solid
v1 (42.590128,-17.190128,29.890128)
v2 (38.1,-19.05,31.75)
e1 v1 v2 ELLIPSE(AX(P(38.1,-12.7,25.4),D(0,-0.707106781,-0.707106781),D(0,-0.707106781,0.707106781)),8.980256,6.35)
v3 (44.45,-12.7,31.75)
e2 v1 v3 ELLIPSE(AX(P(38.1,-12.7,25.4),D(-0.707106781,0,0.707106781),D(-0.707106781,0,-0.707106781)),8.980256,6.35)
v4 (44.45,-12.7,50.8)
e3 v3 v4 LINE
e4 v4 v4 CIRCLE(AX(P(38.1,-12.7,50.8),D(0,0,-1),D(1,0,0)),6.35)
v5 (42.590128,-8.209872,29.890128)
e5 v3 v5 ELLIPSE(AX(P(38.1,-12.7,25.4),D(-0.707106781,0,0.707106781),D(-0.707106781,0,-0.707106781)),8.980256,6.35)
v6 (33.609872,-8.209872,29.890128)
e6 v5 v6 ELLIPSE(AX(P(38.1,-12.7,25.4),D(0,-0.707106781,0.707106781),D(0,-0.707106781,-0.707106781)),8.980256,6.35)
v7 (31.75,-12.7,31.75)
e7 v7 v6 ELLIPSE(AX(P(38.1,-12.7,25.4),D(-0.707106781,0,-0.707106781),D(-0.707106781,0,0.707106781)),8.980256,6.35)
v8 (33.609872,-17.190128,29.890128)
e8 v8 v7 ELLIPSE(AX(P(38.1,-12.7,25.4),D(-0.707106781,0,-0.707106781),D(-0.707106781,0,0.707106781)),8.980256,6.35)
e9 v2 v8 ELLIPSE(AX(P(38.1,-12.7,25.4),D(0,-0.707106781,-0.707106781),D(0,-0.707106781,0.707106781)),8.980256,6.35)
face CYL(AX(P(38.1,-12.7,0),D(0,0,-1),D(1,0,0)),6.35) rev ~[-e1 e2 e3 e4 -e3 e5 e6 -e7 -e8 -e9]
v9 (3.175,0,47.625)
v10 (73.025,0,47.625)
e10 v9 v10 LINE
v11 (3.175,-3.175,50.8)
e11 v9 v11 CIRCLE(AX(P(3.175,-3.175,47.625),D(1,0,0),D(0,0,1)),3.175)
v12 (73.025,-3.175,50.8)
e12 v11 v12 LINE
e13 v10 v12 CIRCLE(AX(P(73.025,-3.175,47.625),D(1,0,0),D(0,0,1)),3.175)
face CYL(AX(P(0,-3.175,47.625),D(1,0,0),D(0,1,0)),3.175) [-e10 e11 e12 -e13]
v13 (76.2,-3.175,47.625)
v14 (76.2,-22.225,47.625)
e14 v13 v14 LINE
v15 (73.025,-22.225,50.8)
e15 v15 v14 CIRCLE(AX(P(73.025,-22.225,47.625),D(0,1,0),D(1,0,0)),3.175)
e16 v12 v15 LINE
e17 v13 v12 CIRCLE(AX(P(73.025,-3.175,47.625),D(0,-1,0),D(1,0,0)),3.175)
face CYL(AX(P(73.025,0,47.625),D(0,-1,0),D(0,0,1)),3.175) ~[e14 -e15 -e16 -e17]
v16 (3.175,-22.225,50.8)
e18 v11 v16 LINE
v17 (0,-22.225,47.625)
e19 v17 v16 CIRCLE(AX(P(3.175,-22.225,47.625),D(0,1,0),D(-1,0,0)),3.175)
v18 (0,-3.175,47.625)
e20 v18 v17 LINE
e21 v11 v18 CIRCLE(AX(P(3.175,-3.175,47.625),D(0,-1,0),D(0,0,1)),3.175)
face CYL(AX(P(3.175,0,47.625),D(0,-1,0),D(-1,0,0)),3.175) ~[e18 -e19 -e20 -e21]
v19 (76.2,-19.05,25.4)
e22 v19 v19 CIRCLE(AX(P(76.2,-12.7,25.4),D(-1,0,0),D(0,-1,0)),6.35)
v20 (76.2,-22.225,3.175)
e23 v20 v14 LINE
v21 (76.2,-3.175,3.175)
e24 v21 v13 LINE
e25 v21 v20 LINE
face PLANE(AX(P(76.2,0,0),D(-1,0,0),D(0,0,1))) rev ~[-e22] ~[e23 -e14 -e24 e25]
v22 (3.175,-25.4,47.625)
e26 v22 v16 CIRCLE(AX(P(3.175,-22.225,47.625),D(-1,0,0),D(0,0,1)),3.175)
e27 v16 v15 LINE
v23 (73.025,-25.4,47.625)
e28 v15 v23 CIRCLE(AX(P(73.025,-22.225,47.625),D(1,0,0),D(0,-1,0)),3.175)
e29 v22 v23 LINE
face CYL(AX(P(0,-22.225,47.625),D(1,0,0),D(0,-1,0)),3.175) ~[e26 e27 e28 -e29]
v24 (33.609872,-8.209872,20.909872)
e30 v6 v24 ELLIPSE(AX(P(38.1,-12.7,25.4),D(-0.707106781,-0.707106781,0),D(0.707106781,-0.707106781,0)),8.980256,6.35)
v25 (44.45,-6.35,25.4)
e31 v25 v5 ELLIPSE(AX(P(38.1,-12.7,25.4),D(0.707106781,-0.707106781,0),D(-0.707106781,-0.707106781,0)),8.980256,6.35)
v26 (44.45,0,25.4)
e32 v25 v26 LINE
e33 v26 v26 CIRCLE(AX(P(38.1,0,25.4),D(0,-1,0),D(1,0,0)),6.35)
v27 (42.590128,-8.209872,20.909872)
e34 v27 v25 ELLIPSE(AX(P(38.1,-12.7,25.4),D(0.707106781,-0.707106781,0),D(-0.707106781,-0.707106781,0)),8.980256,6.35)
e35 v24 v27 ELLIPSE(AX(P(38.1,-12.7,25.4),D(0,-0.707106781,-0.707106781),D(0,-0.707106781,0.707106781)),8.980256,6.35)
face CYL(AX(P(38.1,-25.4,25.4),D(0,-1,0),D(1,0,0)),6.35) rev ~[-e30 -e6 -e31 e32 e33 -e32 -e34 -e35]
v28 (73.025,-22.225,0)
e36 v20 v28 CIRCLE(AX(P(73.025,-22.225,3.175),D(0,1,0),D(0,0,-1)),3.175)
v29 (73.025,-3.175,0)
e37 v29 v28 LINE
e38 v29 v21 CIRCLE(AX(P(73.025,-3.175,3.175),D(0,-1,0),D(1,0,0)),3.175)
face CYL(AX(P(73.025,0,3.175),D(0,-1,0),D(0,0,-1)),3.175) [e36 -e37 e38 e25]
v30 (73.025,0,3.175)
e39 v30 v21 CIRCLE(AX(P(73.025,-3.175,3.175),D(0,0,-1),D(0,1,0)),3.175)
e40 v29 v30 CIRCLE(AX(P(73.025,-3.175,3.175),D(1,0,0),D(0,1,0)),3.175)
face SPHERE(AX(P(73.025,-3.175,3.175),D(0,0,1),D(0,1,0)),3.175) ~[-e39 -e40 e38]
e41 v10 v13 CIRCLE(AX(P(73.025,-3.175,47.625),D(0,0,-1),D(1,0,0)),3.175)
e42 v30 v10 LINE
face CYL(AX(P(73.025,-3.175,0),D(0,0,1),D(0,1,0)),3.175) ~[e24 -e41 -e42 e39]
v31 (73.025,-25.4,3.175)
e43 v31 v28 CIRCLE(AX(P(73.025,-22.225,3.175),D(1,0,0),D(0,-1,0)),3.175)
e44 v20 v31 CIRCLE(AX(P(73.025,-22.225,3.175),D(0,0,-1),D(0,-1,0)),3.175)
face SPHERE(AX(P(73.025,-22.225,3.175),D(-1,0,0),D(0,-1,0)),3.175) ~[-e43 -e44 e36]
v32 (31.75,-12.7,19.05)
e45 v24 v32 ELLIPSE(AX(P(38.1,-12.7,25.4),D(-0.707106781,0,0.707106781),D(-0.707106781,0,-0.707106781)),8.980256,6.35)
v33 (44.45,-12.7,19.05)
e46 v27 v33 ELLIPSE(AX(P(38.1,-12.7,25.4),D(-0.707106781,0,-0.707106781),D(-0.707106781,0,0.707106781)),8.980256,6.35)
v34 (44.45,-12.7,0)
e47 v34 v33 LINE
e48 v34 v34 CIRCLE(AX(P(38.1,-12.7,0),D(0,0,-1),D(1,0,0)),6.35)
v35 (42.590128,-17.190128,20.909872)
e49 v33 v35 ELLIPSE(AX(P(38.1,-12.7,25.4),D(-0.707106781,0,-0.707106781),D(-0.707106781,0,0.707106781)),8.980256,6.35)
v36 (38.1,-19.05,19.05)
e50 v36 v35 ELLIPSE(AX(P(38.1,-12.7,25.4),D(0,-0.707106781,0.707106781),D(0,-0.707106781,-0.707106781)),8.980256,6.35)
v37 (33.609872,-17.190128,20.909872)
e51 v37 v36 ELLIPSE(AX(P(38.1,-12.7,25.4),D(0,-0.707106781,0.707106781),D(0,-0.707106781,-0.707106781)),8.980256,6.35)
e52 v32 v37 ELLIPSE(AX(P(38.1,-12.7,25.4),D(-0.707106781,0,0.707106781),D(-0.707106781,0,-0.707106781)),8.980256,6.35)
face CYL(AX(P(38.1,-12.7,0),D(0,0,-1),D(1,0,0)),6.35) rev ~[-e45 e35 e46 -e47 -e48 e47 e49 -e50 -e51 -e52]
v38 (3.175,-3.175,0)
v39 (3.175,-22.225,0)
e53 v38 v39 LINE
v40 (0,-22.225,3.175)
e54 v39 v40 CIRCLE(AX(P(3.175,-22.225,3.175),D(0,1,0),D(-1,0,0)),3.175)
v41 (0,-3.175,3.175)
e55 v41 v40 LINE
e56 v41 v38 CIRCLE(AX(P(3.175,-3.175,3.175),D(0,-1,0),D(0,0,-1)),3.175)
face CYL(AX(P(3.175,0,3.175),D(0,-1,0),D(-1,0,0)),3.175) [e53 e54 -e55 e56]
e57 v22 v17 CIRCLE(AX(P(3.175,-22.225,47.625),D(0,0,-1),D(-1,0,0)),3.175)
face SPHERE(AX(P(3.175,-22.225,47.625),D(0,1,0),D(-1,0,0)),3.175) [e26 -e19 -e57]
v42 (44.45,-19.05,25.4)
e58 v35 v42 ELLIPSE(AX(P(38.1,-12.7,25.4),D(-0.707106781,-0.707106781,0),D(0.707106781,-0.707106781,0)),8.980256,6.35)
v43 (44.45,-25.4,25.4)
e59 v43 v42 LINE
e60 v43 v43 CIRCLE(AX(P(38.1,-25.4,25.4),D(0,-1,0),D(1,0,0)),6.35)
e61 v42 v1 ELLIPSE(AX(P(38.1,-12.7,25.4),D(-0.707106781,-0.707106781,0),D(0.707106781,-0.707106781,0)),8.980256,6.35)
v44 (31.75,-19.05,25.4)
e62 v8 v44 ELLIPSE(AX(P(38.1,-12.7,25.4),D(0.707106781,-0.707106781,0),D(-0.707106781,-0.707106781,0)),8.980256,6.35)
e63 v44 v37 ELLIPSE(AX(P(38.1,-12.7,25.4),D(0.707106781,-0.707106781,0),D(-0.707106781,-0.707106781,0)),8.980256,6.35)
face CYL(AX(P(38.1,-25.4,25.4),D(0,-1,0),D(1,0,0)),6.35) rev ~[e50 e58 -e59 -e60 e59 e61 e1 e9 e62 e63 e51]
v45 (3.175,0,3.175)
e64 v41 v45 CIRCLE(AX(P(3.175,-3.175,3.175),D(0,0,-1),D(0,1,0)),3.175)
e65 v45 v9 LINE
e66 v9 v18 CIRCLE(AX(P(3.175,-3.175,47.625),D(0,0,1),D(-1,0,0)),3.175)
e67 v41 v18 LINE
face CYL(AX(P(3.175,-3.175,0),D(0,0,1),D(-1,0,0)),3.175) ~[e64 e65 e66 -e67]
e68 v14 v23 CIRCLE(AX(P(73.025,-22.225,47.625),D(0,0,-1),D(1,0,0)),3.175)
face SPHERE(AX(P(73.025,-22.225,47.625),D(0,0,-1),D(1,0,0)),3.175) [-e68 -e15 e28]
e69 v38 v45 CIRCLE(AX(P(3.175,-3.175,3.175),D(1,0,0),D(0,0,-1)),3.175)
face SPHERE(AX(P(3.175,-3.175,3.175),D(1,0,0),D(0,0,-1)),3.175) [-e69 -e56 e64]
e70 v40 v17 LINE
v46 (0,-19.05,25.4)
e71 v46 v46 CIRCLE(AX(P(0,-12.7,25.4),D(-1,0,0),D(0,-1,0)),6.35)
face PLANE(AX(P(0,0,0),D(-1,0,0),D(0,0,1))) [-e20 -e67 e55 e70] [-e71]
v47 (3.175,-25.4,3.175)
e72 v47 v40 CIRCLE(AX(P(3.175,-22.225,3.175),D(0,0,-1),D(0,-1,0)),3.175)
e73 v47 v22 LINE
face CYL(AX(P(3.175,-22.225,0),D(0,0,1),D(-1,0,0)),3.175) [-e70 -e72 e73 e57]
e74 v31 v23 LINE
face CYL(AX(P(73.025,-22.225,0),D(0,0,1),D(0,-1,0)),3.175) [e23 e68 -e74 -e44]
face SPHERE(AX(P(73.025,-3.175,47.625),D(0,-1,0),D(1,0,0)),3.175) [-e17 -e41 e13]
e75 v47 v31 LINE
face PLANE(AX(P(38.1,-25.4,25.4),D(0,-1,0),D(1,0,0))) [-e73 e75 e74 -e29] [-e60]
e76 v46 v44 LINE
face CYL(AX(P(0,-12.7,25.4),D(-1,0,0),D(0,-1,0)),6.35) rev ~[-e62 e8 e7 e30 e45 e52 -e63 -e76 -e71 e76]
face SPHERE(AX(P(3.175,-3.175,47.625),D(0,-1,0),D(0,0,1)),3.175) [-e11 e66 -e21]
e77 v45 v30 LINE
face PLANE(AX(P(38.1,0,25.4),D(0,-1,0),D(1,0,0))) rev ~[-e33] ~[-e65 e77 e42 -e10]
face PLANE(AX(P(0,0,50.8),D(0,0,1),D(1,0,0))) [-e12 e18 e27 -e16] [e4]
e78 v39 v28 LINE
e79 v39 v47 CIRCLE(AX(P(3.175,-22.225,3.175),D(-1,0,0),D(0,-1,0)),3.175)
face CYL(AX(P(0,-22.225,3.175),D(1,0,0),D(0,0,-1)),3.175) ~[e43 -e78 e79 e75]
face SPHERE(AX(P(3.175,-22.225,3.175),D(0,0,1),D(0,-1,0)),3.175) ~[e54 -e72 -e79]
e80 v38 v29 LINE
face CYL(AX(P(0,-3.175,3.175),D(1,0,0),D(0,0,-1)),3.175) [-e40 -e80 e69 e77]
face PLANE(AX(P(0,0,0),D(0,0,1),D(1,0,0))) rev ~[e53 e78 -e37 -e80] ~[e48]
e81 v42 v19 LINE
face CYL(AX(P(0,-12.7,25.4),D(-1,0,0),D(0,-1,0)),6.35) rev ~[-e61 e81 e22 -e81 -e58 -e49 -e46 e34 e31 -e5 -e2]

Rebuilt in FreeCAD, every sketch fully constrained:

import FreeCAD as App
import Part
import Sketcher
Q = App.Units.Quantity


def edges_at(feature, points):
    """Names of the edges that pass closest to the given points."""
    edges = feature.Shape.Edges
    near = lambda p: min(range(len(edges)), key=lambda i: edges[i].distToShape(Part.Vertex(*p))[0])
    return sorted({f"Edge{near(p) + 1}" for p in points})

doc = App.newDocument("Part")
body = doc.addObject("PartDesign::Body", "Body")

sketch1 = doc.addObject("Sketcher::SketchObject", "Sketch")
body.addObject(sketch1)
sketch1.AttachmentSupport = (doc.XZ_Plane, [""])
sketch1.MapMode = "FlatFace"
sketch1.addGeometry(Part.LineSegment(App.Vector(0, 51, 0), App.Vector(0, 0, 0)), False)
sketch1.addGeometry(Part.LineSegment(App.Vector(0, 0, 0), App.Vector(76, 0, 0)), False)
sketch1.addGeometry(Part.LineSegment(App.Vector(76, 0, 0), App.Vector(76, 51, 0)), False)
sketch1.addGeometry(Part.LineSegment(App.Vector(76, 51, 0), App.Vector(0, 51, 0)), False)
sketch1.addConstraint(Sketcher.Constraint("Coincident", 0, 2, 1, 1))
sketch1.addConstraint(Sketcher.Constraint("Coincident", 1, 2, 2, 1))
sketch1.addConstraint(Sketcher.Constraint("Coincident", 2, 2, 3, 1))
sketch1.addConstraint(Sketcher.Constraint("Coincident", 3, 2, 0, 1))
sketch1.addConstraint(Sketcher.Constraint("Vertical", 0))
sketch1.addConstraint(Sketcher.Constraint("Horizontal", 1))
sketch1.addConstraint(Sketcher.Constraint("Vertical", 2))
sketch1.addConstraint(Sketcher.Constraint("Horizontal", 3))
sketch1.addConstraint(Sketcher.Constraint("Coincident", 0, 2, -1, 1))
sketch1.addConstraint(Sketcher.Constraint("DistanceX", 1, 1, 1, 2, Q("3 in")))
sketch1.addConstraint(Sketcher.Constraint("DistanceY", 0, 2, 0, 1, Q("2 in")))
pad1 = doc.addObject("PartDesign::Pad", "Pad")
body.addObject(pad1)
pad1.Profile = sketch1
pad1.Length = Q("1 in")

sketch2 = doc.addObject("Sketcher::SketchObject", "Sketch001")
body.addObject(sketch2)
sketch2.AttachmentSupport = (doc.XZ_Plane, [""])
sketch2.MapMode = "FlatFace"
sketch2.AttachmentOffset = App.Placement(App.Vector(0, 0, 1 * 25.4), App.Rotation())
sketch2.addGeometry(Part.Circle(App.Vector(38, 25, 0), App.Vector(0, 0, 1), 6), False)
sketch2.addConstraint(Sketcher.Constraint("Diameter", 0, Q("0.5 in")))
sketch2.addConstraint(Sketcher.Constraint("DistanceY", -1, 1, 0, 3, Q("1 in")))
sketch2.addConstraint(Sketcher.Constraint("DistanceX", -1, 1, 0, 3, Q("1.5 in")))
pocket1 = doc.addObject("PartDesign::Pocket", "Pocket")
body.addObject(pocket1)
pocket1.Profile = sketch2
pocket1.Type = "ThroughAll"

sketch3 = doc.addObject("Sketcher::SketchObject", "Sketch002")
body.addObject(sketch3)
sketch3.AttachmentSupport = (doc.YZ_Plane, [""])
sketch3.MapMode = "FlatFace"
sketch3.addGeometry(Part.Circle(App.Vector(-13, 25, 0), App.Vector(0, 0, 1), 6), False)
sketch3.addConstraint(Sketcher.Constraint("Diameter", 0, Q("0.5 in")))
sketch3.addConstraint(Sketcher.Constraint("DistanceY", -1, 1, 0, 3, Q("1 in")))
sketch3.addConstraint(Sketcher.Constraint("DistanceX", 0, 3, -1, 1, Q("0.5 in")))
pocket2 = doc.addObject("PartDesign::Pocket", "Pocket001")
body.addObject(pocket2)
pocket2.Profile = sketch3
pocket2.Type = "ThroughAll"
pocket2.Reversed = True

sketch4 = doc.addObject("Sketcher::SketchObject", "Sketch003")
body.addObject(sketch4)
sketch4.AttachmentSupport = (doc.XY_Plane, [""])
sketch4.MapMode = "FlatFace"
sketch4.addGeometry(Part.Circle(App.Vector(38, -13, 0), App.Vector(0, 0, 1), 6), False)
sketch4.addConstraint(Sketcher.Constraint("Diameter", 0, Q("0.5 in")))
sketch4.addConstraint(Sketcher.Constraint("DistanceX", -1, 1, 0, 3, Q("1.5 in")))
sketch4.addConstraint(Sketcher.Constraint("DistanceY", 0, 3, -1, 1, Q("0.5 in")))
pocket3 = doc.addObject("PartDesign::Pocket", "Pocket002")
body.addObject(pocket3)
pocket3.Profile = sketch4
pocket3.Type = "ThroughAll"
pocket3.Reversed = True
doc.recompute()

fillet = doc.addObject("PartDesign::Fillet", "Fillet")
body.addObject(fillet)
fillet.Base = (pocket3, edges_at(pocket3, [
    (0, -12.7, 50.8),
    (0, -25.4, 25.4),
    (38.1, -25.4, 0),
    (76.2, -25.4, 25.4),
    (76.2, -12.7, 50.8),
    (76.2, 0, 25.4),
    (38.1, -25.4, 50.8),
    (38.1, 0, 50.8),
    (38.1, 0, 0),
    (0, -12.7, 0),
    (0, 0, 25.4),
    (76.2, -12.7, 0),
]))
fillet.Radius = Q("0.125 in")

doc.recompute()
